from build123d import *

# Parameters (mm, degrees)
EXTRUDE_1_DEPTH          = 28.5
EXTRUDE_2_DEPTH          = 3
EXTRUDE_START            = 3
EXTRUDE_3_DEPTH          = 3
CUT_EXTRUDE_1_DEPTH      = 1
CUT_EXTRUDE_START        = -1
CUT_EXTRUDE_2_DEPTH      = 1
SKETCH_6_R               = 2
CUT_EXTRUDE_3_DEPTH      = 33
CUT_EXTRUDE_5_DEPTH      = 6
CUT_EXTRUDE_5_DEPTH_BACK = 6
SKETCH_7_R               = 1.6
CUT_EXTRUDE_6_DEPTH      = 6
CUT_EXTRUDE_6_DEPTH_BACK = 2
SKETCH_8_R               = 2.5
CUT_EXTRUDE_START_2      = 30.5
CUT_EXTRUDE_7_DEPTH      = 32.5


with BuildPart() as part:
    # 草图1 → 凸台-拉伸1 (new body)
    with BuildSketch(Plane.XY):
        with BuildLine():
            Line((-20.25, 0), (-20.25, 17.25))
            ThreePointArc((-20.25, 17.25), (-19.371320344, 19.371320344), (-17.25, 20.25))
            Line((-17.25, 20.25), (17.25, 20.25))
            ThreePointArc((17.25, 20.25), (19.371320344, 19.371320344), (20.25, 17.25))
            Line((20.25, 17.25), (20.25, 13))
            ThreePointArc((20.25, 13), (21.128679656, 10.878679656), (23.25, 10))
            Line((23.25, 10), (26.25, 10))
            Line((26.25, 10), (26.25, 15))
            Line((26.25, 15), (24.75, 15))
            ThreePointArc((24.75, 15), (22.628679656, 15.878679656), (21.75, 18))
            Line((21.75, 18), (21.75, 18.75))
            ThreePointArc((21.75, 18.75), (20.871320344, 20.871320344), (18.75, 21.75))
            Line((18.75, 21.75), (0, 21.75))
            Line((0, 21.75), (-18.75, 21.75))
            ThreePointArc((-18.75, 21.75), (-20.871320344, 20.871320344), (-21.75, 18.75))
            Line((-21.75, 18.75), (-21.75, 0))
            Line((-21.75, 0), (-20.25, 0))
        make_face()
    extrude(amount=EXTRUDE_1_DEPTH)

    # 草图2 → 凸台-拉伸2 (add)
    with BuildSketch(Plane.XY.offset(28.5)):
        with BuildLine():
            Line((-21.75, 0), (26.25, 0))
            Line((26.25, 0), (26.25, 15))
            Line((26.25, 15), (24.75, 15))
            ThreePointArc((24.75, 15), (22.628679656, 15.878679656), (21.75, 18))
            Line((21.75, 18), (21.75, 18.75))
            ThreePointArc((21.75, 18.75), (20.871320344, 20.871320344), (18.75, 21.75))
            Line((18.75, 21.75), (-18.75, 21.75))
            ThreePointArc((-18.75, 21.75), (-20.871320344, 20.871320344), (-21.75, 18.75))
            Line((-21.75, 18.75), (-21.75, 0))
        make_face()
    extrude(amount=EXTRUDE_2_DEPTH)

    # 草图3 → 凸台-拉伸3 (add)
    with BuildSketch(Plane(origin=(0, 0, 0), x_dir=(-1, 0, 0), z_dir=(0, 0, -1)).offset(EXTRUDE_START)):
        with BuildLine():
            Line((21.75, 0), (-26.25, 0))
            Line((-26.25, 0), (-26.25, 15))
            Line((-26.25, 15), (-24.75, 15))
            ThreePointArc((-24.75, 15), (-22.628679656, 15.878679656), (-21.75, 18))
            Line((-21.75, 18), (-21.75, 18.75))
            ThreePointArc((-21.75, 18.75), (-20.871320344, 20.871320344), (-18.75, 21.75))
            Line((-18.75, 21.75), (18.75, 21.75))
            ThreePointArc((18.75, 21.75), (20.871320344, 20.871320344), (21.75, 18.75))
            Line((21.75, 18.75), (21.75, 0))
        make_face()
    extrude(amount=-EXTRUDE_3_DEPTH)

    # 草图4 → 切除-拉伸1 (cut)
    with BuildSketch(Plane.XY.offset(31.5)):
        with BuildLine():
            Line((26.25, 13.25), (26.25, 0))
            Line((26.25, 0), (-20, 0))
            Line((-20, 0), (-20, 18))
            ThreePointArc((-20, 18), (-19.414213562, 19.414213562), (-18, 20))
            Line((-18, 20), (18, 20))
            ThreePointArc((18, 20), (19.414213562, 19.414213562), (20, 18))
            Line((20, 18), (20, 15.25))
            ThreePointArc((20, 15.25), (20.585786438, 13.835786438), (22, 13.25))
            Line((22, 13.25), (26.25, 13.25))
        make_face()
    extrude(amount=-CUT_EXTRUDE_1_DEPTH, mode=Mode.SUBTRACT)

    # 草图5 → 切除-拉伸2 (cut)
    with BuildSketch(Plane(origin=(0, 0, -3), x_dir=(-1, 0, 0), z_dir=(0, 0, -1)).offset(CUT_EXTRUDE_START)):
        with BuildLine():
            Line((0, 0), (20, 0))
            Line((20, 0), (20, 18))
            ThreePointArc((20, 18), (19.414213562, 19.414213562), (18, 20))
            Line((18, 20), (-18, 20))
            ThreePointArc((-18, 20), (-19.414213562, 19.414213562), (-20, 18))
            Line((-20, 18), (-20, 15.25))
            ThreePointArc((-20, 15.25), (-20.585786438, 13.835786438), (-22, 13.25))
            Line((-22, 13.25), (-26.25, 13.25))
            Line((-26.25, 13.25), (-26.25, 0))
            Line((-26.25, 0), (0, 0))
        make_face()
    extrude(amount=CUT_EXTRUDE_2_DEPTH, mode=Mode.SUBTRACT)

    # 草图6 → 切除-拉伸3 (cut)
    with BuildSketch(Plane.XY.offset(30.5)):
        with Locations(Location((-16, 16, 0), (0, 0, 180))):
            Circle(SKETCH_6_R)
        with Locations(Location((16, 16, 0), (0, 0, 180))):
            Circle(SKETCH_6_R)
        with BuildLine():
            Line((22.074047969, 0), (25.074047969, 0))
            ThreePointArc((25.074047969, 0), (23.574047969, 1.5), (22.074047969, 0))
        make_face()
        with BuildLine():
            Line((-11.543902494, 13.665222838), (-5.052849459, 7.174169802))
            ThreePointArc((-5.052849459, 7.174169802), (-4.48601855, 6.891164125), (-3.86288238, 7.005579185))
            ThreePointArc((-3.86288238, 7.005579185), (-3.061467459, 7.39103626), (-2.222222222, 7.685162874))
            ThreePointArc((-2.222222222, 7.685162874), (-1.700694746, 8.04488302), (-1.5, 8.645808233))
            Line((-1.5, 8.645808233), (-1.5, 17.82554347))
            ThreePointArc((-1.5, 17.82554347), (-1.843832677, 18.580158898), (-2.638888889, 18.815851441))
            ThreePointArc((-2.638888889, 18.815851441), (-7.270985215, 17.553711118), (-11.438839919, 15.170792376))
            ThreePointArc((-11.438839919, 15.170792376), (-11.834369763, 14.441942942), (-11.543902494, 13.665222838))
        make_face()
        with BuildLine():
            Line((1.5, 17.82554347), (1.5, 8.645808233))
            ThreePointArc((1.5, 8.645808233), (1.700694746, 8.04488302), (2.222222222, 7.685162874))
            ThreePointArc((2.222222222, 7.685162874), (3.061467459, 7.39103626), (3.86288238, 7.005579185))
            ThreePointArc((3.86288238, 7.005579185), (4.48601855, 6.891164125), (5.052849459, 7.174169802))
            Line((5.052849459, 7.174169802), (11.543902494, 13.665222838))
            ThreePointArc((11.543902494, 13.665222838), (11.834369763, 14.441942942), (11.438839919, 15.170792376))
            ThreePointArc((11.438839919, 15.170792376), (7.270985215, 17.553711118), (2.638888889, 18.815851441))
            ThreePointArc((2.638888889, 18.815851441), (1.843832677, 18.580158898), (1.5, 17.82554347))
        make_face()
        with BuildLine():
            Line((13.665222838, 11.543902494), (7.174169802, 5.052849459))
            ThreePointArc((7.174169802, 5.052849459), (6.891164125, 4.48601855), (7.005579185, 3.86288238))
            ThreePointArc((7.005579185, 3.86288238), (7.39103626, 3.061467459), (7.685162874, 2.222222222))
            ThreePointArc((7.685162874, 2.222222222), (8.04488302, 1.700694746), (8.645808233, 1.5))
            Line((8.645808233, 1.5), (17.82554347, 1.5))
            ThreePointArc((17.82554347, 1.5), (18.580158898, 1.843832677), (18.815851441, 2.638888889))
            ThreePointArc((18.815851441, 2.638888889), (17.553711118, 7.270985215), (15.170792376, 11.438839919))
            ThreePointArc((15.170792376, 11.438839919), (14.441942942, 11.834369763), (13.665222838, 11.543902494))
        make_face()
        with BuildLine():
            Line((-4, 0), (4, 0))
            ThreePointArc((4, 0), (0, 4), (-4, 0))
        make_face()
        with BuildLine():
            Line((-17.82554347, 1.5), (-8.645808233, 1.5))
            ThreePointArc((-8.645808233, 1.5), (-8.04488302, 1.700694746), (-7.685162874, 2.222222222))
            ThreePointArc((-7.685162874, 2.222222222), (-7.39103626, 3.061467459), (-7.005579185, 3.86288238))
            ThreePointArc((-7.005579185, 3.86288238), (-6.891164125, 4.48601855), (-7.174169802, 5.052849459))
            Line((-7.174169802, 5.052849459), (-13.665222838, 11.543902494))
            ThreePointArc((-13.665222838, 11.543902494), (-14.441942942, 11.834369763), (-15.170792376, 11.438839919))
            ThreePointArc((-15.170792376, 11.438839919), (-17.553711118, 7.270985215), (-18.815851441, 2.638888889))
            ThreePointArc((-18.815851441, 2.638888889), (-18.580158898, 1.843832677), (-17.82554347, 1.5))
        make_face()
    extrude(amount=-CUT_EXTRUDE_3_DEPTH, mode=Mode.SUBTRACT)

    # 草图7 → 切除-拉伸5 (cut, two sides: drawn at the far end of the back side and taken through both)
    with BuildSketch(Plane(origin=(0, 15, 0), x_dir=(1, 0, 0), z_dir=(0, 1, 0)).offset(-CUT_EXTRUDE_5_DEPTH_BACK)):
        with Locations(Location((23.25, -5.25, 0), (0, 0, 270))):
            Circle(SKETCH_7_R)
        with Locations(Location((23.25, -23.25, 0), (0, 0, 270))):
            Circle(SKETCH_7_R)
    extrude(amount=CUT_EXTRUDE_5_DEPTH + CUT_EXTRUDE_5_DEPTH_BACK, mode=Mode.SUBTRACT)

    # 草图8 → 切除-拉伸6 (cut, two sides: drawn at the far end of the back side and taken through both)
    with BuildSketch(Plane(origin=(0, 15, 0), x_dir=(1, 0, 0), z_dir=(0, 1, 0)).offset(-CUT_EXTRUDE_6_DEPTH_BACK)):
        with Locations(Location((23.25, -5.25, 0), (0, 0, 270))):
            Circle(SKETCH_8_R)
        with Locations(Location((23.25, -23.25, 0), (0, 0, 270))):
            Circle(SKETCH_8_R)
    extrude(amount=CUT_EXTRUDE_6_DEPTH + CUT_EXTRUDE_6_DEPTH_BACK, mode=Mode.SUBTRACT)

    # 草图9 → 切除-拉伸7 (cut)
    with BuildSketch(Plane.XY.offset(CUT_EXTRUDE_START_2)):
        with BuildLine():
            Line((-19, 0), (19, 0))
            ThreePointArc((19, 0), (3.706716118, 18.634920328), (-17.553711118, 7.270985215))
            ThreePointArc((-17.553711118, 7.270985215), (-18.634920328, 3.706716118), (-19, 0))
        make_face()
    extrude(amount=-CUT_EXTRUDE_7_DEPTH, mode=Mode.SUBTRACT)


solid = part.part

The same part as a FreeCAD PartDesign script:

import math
import FreeCAD as App
import Part
import Sketcher
from FreeCAD import Vector

doc = App.newDocument("Part")
params = doc.addObject("Spreadsheet::Sheet", "Params")
for row, (alias, value) in enumerate([
    ("sketch1_radius", "3 mm"),
    ("sketch1_width", "3 mm"),
    ("sketch1_height", "5 mm"),
    ("sketch1_width2", "34.5 mm"),
    ("sketch1_width3", "1.5 mm"),
    ("pad1_length", "28.5 mm"),
    ("sketch2_radius", "3 mm"),
    ("sketch2_width", "48 mm"),
    ("sketch2_height", "15 mm"),
    ("sketch2_width2", "1.5 mm"),
    ("sketch2_height2", "0.75 mm"),
    ("pad2_length", "3 mm"),
    ("sketch3_radius", "3 mm"),
    ("sketch3_width", "48 mm"),
    ("sketch3_height", "15 mm"),
    ("sketch3_width2", "37.5 mm"),
    ("sketch3_height2", "18.75 mm"),
    ("pad3_length", "3 mm"),
    ("sketch4_radius", "2 mm"),
    ("sketch4_width", "36 mm"),
    ("sketch4_height", "18 mm"),
    ("sketch4_width2", "4.25 mm"),
    ("sketch4_height2", "13.25 mm"),
    ("pocket1_length", "1 mm"),
    ("sketch5_radius", "2 mm"),
    ("sketch5_width", "36 mm"),
    ("sketch5_height", "18 mm"),
    ("sketch5_width2", "4.25 mm"),
    ("sketch5_height2", "2.75 mm"),
    ("pocket2_length", "1 mm"),
    ("sketch6_diameter", "4 mm"),
    ("sketch6_radius", "1 mm"),
    ("sketch6_radius2", "8 mm"),
    ("sketch6_radius3", "19 mm"),
    ("sketch6_radius4", "4 mm"),
    ("pocket3_length", "33 mm"),
    ("sketch7_diameter", "3.2 mm"),
    ("sketch8_diameter", "5 mm"),
    ("pocket5_length", "6 mm"),
    ("pocket5_length2", "2 mm"),
    ("sketch9_radius", "19 mm"),
    ("pocket6_length", "32.5 mm"),
], start=1):
    params.set(f"A{row}", alias)
    params.set(f"B{row}", "=" + value)
    params.setAlias(f"B{row}", alias)

body = doc.addObject("PartDesign::Body", "Body")

# Sketch on XY plane
sketch1 = body.newObject("Sketcher::SketchObject", "Sketch")
sketch1.AttachmentSupport = (doc.getObject("XY_Plane"), [""])
sketch1.MapMode = "FlatFace"
sketch1.addGeometry(Part.LineSegment(Vector(-20.2, 0, 0), Vector(-20.2, 17.2, 0)), False)
sketch1.addGeometry(Part.ArcOfCircle(Part.Circle(Vector(-17.3, 17.3, 0), Vector(0, 0, 1), 3), math.radians(90), math.radians(180)), False)
sketch1.addGeometry(Part.LineSegment(Vector(-17.2, 20.2, 0), Vector(17.2, 20.2, 0)), False)
sketch1.addGeometry(Part.ArcOfCircle(Part.Circle(Vector(17.3, 17.3, 0), Vector(0, 0, 1), 3), math.radians(0), math.radians(90)), False)
sketch1.addGeometry(Part.LineSegment(Vector(20.2, 17.2, 0), Vector(20.2, 13, 0)), False)
sketch1.addGeometry(Part.ArcOfCircle(Part.Circle(Vector(23.2, 13, 0), Vector(0, 0, 1), 3), math.radians(180), math.radians(270)), False)
sketch1.addGeometry(Part.LineSegment(Vector(23.2, 10, 0), Vector(26.2, 10, 0)), False)
sketch1.addGeometry(Part.LineSegment(Vector(26.2, 10, 0), Vector(26.2, 15, 0)), False)
sketch1.addGeometry(Part.LineSegment(Vector(26.2, 15, 0), Vector(24.8, 15, 0)), False)
sketch1.addGeometry(Part.ArcOfCircle(Part.Circle(Vector(24.7, 18, 0), Vector(0, 0, 1), 3), math.radians(180), math.radians(270)), False)
sketch1.addGeometry(Part.LineSegment(Vector(21.8, 18, 0), Vector(21.8, 18.8, 0)), False)
sketch1.addGeometry(Part.ArcOfCircle(Part.Circle(Vector(18.8, 18.8, 0), Vector(0, 0, 1), 3), math.radians(0), math.radians(90)), False)
sketch1.addGeometry(Part.LineSegment(Vector(18.8, 21.8, 0), Vector(-18.8, 21.8, 0)), False)
sketch1.addGeometry(Part.ArcOfCircle(Part.Circle(Vector(-18.8, 18.8, 0), Vector(0, 0, 1), 3), math.radians(90), math.radians(180)), False)
sketch1.addGeometry(Part.LineSegment(Vector(-21.8, 18.8, 0), Vector(-21.8, 0, 0)), False)
sketch1.addGeometry(Part.LineSegment(Vector(-21.8, 0, 0), Vector(-20.2, 0, 0)), False)
sketch1.addConstraint(Sketcher.Constraint("Tangent", 0, 2, 1, 2))
sketch1.addConstraint(Sketcher.Constraint("Tangent", 1, 1, 2, 1))
sketch1.addConstraint(Sketcher.Constraint("Tangent", 2, 2, 3, 2))
sketch1.addConstraint(Sketcher.Constraint("Tangent", 3, 1, 4, 1))
sketch1.addConstraint(Sketcher.Constraint("Tangent", 4, 2, 5, 1))
sketch1.addConstraint(Sketcher.Constraint("Tangent", 5, 2, 6, 1))
sketch1.addConstraint(Sketcher.Constraint("Coincident", 6, 2, 7, 1))
sketch1.addConstraint(Sketcher.Constraint("Coincident", 7, 2, 8, 1))
sketch1.addConstraint(Sketcher.Constraint("Tangent", 8, 2, 9, 2))
sketch1.addConstraint(Sketcher.Constraint("Tangent", 9, 1, 10, 1))
sketch1.addConstraint(Sketcher.Constraint("Tangent", 10, 2, 11, 1))
sketch1.addConstraint(Sketcher.Constraint("Tangent", 11, 2, 12, 1))
sketch1.addConstraint(Sketcher.Constraint("Tangent", 12, 2, 13, 1))
sketch1.addConstraint(Sketcher.Constraint("Tangent", 13, 2, 14, 1))
sketch1.addConstraint(Sketcher.Constraint("Coincident", 14, 2, 15, 1))
sketch1.addConstraint(Sketcher.Constraint("Coincident", 15, 2, 0, 1))
sketch1.addConstraint(Sketcher.Constraint("Vertical", 0))
sketch1.addConstraint(Sketcher.Constraint("Horizontal", 2))
sketch1.addConstraint(Sketcher.Constraint("Vertical", 4))
sketch1.addConstraint(Sketcher.Constraint("Horizontal", 6))
sketch1.addConstraint(Sketcher.Constraint("Vertical", 7))
sketch1.addConstraint(Sketcher.Constraint("Horizontal", 8))
sketch1.addConstraint(Sketcher.Constraint("Vertical", 10))
sketch1.addConstraint(Sketcher.Constraint("Horizontal", 12))
sketch1.addConstraint(Sketcher.Constraint("Vertical", 14))
sketch1.addConstraint(Sketcher.Constraint("Horizontal", 15))
sketch1.addConstraint(Sketcher.Constraint("Equal", 1, 3))
sketch1.addConstraint(Sketcher.Constraint("Equal", 3, 5))
sketch1.addConstraint(Sketcher.Constraint("Equal", 5, 9))
sketch1.addConstraint(Sketcher.Constraint("Equal", 9, 11))
sketch1.addConstraint(Sketcher.Constraint("Equal", 11, 13))
sketch1.addConstraint(Sketcher.Constraint("PointOnObject", 14, 2, -1))
sketch1.addConstraint(Sketcher.Constraint("Equal", 8, 15))
sketch1.addConstraint(Sketcher.Constraint("Radius", 1, 3.0))
sketch1.addConstraint(Sketcher.Constraint("DistanceX", 6, 1, 6, 2, 3.0))
sketch1.addConstraint(Sketcher.Constraint("DistanceY", 7, 1, 7, 2, 5.0))
sketch1.addConstraint(Sketcher.Constraint("DistanceX", 2, 1, 2, 2, 34.5))
sketch1.addConstraint(Sketcher.Constraint("DistanceX", 8, 2, 8, 1, 1.5))
sketch1.addConstraint(Sketcher.Constraint("DistanceY", -1, 1, 5, 3, 13.0))
sketch1.addConstraint(Sketcher.Constraint("DistanceY", 0, 1, 0, 2, 17.25))
sketch1.addConstraint(Sketcher.Constraint("DistanceY", 10, 1, 10, 2, 0.75))
sketch1.addConstraint(Sketcher.Constraint("DistanceX", 1, 3, -1, 1, 17.25))
sketch1.setExpression("Constraints[33]", "Params.sketch1_radius")
sketch1.setExpression("Constraints[34]", "Params.sketch1_width")
sketch1.setExpression("Constraints[35]", "Params.sketch1_height")
sketch1.setExpression("Constraints[36]", "Params.sketch1_width2")
sketch1.setExpression("Constraints[37]", "Params.sketch1_width3")
pad1 = body.newObject("PartDesign::Pad", "Pad")
pad1.Profile = sketch1
pad1.setExpression("Length", "Params.pad1_length")

# Sketch on XY plane
sketch2 = body.newObject("Sketcher::SketchObject", "Sketch001")
sketch2.AttachmentSupport = (doc.getObject("XY_Plane"), [""])
sketch2.MapMode = "FlatFace"
sketch2.AttachmentOffset = App.Placement(Vector(0, 0, 28.5), App.Rotation())
sketch2.addGeometry(Part.LineSegment(Vector(-21.8, 0, 0), Vector(26.2, 0, 0)), False)
sketch2.addGeometry(Part.LineSegment(Vector(26.2, 0, 0), Vector(26.2, 15, 0)), False)
sketch2.addGeometry(Part.LineSegment(Vector(26.2, 15, 0), Vector(24.8, 15, 0)), False)
sketch2.addGeometry(Part.ArcOfCircle(Part.Circle(Vector(24.7, 18, 0), Vector(0, 0, 1), 3), math.radians(180), math.radians(270)), False)
sketch2.addGeometry(Part.LineSegment(Vector(21.8, 18, 0), Vector(21.8, 18.8, 0)), False)
sketch2.addGeometry(Part.ArcOfCircle(Part.Circle(Vector(18.8, 18.8, 0), Vector(0, 0, 1), 3), math.radians(0), math.radians(90)), False)
sketch2.addGeometry(Part.LineSegment(Vector(18.8, 21.8, 0), Vector(-18.8, 21.8, 0)), False)
sketch2.addGeometry(Part.ArcOfCircle(Part.Circle(Vector(-18.8, 18.8, 0), Vector(0, 0, 1), 3), math.radians(90), math.radians(180)), False)
sketch2.addGeometry(Part.LineSegment(Vector(-21.8, 18.8, 0), Vector(-21.8, 0, 0)), False)
sketch2.addConstraint(Sketcher.Constraint("Coincident", 0, 2, 1, 1))
sketch2.addConstraint(Sketcher.Constraint("Coincident", 1, 2, 2, 1))
sketch2.addConstraint(Sketcher.Constraint("Tangent", 2, 2, 3, 2))
sketch2.addConstraint(Sketcher.Constraint("Tangent", 3, 1, 4, 1))
sketch2.addConstraint(Sketcher.Constraint("Tangent", 4, 2, 5, 1))
sketch2.addConstraint(Sketcher.Constraint("Tangent", 5, 2, 6, 1))
sketch2.addConstraint(Sketcher.Constraint("Tangent", 6, 2, 7, 1))
sketch2.addConstraint(Sketcher.Constraint("Tangent", 7, 2, 8, 1))
sketch2.addConstraint(Sketcher.Constraint("Coincident", 8, 2, 0, 1))
sketch2.addConstraint(Sketcher.Constraint("Horizontal", 0))
sketch2.addConstraint(Sketcher.Constraint("Vertical", 1))
sketch2.addConstraint(Sketcher.Constraint("Horizontal", 2))
sketch2.addConstraint(Sketcher.Constraint("Vertical", 4))
sketch2.addConstraint(Sketcher.Constraint("Horizontal", 6))
sketch2.addConstraint(Sketcher.Constraint("Vertical", 8))
sketch2.addConstraint(Sketcher.Constraint("Equal", 3, 5))
sketch2.addConstraint(Sketcher.Constraint("Equal", 5, 7))
sketch2.addConstraint(Sketcher.Constraint("PointOnObject", 0, 2, -1))
sketch2.addConstraint(Sketcher.Constraint("Radius", 3, 3.0))
sketch2.addConstraint(Sketcher.Constraint("DistanceX", 0, 1, 0, 2, 48.0))
sketch2.addConstraint(Sketcher.Constraint("DistanceY", 1, 1, 1, 2, 15.0))
sketch2.addConstraint(Sketcher.Constraint("DistanceX", 2, 2, 2, 1, 1.5))
sketch2.addConstraint(Sketcher.Constraint("DistanceY", 4, 1, 4, 2, 0.75))
sketch2.addConstraint(Sketcher.Constraint("DistanceX", -1, 1, 3, 3, 24.75))
sketch2.setExpression("Constraints[18]", "Params.sketch2_radius")
sketch2.setExpression("Constraints[19]", "Params.sketch2_width")
sketch2.setExpression("Constraints[20]", "Params.sketch2_height")
sketch2.setExpression("Constraints[21]", "Params.sketch2_width2")
sketch2.setExpression("Constraints[22]", "Params.sketch2_height2")
pad2 = body.newObject("PartDesign::Pad", "Pad001")
pad2.Profile = sketch2
pad2.setExpression("Length", "Params.pad2_length")

# Sketch on XY plane
sketch3 = body.newObject("Sketcher::SketchObject", "Sketch002")
sketch3.AttachmentSupport = (doc.getObject("XY_Plane"), [""])
sketch3.MapMode = "FlatFace"
sketch3.AttachmentOffset = App.Placement(Vector(0, 0, -3), App.Rotation())
sketch3.addGeometry(Part.LineSegment(Vector(26.2, 0, 0), Vector(-21.8, 0, 0)), False)
sketch3.addGeometry(Part.LineSegment(Vector(-21.8, 0, 0), Vector(-21.8, 18.8, 0)), False)
sketch3.addGeometry(Part.ArcOfCircle(Part.Circle(Vector(-18.8, 18.8, 0), Vector(0, 0, 1), 3), math.radians(90), math.radians(180)), False)
sketch3.addGeometry(Part.LineSegment(Vector(-18.8, 21.8, 0), Vector(18.8, 21.8, 0)), False)
sketch3.addGeometry(Part.ArcOfCircle(Part.Circle(Vector(18.8, 18.8, 0), Vector(0, 0, 1), 3), math.radians(0), math.radians(90)), False)
sketch3.addGeometry(Part.LineSegment(Vector(21.8, 18.8, 0), Vector(21.8, 18, 0)), False)
sketch3.addGeometry(Part.ArcOfCircle(Part.Circle(Vector(24.7, 18, 0), Vector(0, 0, 1), 3), math.radians(180), math.radians(270)), False)
sketch3.addGeometry(Part.LineSegment(Vector(24.8, 15, 0), Vector(26.2, 15, 0)), False)
sketch3.addGeometry(Part.LineSegment(Vector(26.2, 15, 0), Vector(26.2, 0, 0)), False)
sketch3.addConstraint(Sketcher.Constraint("Coincident", 0, 2, 1, 1))
sketch3.addConstraint(Sketcher.Constraint("Tangent", 1, 2, 2, 2))
sketch3.addConstraint(Sketcher.Constraint("Tangent", 2, 1, 3, 1))
sketch3.addConstraint(Sketcher.Constraint("Tangent", 3, 2, 4, 2))
sketch3.addConstraint(Sketcher.Constraint("Tangent", 4, 1, 5, 1))
sketch3.addConstraint(Sketcher.Constraint("Tangent", 5, 2, 6, 1))
sketch3.addConstraint(Sketcher.Constraint("Tangent", 6, 2, 7, 1))
sketch3.addConstraint(Sketcher.Constraint("Coincident", 7, 2, 8, 1))
sketch3.addConstraint(Sketcher.Constraint("Coincident", 8, 2, 0, 1))
sketch3.addConstraint(Sketcher.Constraint("Horizontal", 0))
sketch3.addConstraint(Sketcher.Constraint("Vertical", 1))
sketch3.addConstraint(Sketcher.Constraint("Horizontal", 3))
sketch3.addConstraint(Sketcher.Constraint("Vertical", 5))
sketch3.addConstraint(Sketcher.Constraint("Horizontal", 7))
sketch3.addConstraint(Sketcher.Constraint("Vertical", 8))
sketch3.addConstraint(Sketcher.Constraint("Equal", 2, 4))
sketch3.addConstraint(Sketcher.Constraint("Equal", 4, 6))
sketch3.addConstraint(Sketcher.Constraint("PointOnObject", 0, 2, -1))
sketch3.addConstraint(Sketcher.Constraint("Radius", 2, 3.0))
sketch3.addConstraint(Sketcher.Constraint("DistanceX", 0, 2, 0, 1, 48.0))
sketch3.addConstraint(Sketcher.Constraint("DistanceY", 8, 2, 8, 1, 15.0))
sketch3.addConstraint(Sketcher.Constraint("DistanceX", 3, 1, 3, 2, 37.5))
sketch3.addConstraint(Sketcher.Constraint("DistanceY", 1, 1, 1, 2, 18.75))
sketch3.addConstraint(Sketcher.Constraint("DistanceX", 2, 3, -1, 1, 18.75))
sketch3.setExpression("Constraints[18]", "Params.sketch3_radius")
sketch3.setExpression("Constraints[19]", "Params.sketch3_width")
sketch3.setExpression("Constraints[20]", "Params.sketch3_height")
sketch3.setExpression("Constraints[21]", "Params.sketch3_width2")
sketch3.setExpression("Constraints[22]", "Params.sketch3_height2")
pad3 = body.newObject("PartDesign::Pad", "Pad002")
pad3.Profile = sketch3
pad3.setExpression("Length", "Params.pad3_length")

# Sketch on XY plane
sketch4 = body.newObject("Sketcher::SketchObject", "Sketch003")
sketch4.AttachmentSupport = (doc.getObject("XY_Plane"), [""])
sketch4.MapMode = "FlatFace"
sketch4.AttachmentOffset = App.Placement(Vector(0, 0, 31.5), App.Rotation())
sketch4.addGeometry(Part.LineSegment(Vector(26.2, 0, 0), Vector(26.2, 13.2, 0)), False)
sketch4.addGeometry(Part.LineSegment(Vector(26.2, 13.2, 0), Vector(22, 13.2, 0)), False)
sketch4.addGeometry(Part.ArcOfCircle(Part.Circle(Vector(22, 15.3, 0), Vector(0, 0, 1), 2), math.radians(-180), math.radians(-90)), False)
sketch4.addGeometry(Part.LineSegment(Vector(20, 15.2, 0), Vector(20, 18, 0)), False)
sketch4.addGeometry(Part.ArcOfCircle(Part.Circle(Vector(18, 18, 0), Vector(0, 0, 1), 2), math.radians(0), math.radians(90)), False)
sketch4.addGeometry(Part.LineSegment(Vector(18, 20, 0), Vector(-18, 20, 0)), False)
sketch4.addGeometry(Part.ArcOfCircle(Part.Circle(Vector(-18, 18, 0), Vector(0, 0, 1), 2), math.radians(90), math.radians(180)), False)
sketch4.addGeometry(Part.LineSegment(Vector(-20, 18, 0), Vector(-20, 0, 0)), False)
sketch4.addGeometry(Part.LineSegment(Vector(-20, 0, 0), Vector(26.2, 0, 0)), False)
sketch4.addConstraint(Sketcher.Constraint("Coincident", 0, 2, 1, 1))
sketch4.addConstraint(Sketcher.Constraint("Tangent", 1, 2, 2, 2))
sketch4.addConstraint(Sketcher.Constraint("Tangent", 2, 1, 3, 1))
sketch4.addConstraint(Sketcher.Constraint("Tangent", 3, 2, 4, 1))
sketch4.addConstraint(Sketcher.Constraint("Tangent", 4, 2, 5, 1))
sketch4.addConstraint(Sketcher.Constraint("Tangent", 5, 2, 6, 1))
sketch4.addConstraint(Sketcher.Constraint("Tangent", 6, 2, 7, 1))
sketch4.addConstraint(Sketcher.Constraint("Coincident", 7, 2, 8, 1))
sketch4.addConstraint(Sketcher.Constraint("Coincident", 8, 2, 0, 1))
sketch4.addConstraint(Sketcher.Constraint("Vertical", 0))
sketch4.addConstraint(Sketcher.Constraint("Horizontal", 1))
sketch4.addConstraint(Sketcher.Constraint("Vertical", 3))
sketch4.addConstraint(Sketcher.Constraint("Horizontal", 5))
sketch4.addConstraint(Sketcher.Constraint("Vertical", 7))
sketch4.addConstraint(Sketcher.Constraint("Horizontal", 8))
sketch4.addConstraint(Sketcher.Constraint("Equal", 2, 4))
sketch4.addConstraint(Sketcher.Constraint("Equal", 4, 6))
sketch4.addConstraint(Sketcher.Constraint("PointOnObject", 7, 2, -1))
sketch4.addConstraint(Sketcher.Constraint("Radius", 2, 2.0))
sketch4.addConstraint(Sketcher.Constraint("DistanceX", 5, 2, 5, 1, 36.0))
sketch4.addConstraint(Sketcher.Constraint("DistanceY", 7, 2, 7, 1, 18.0))
sketch4.addConstraint(Sketcher.Constraint("DistanceX", -1, 1, 2, 3, 22.0))
sketch4.addConstraint(Sketcher.Constraint("DistanceX", 1, 2, 1, 1, 4.25))
sketch4.addConstraint(Sketcher.Constraint("DistanceY", 0, 1, 0, 2, 13.25))
sketch4.setExpression("Constraints[18]", "Params.sketch4_radius")
sketch4.setExpression("Constraints[19]", "Params.sketch4_width")
sketch4.setExpression("Constraints[20]", "Params.sketch4_height")
sketch4.setExpression("Constraints[22]", "Params.sketch4_width2")
sketch4.setExpression("Constraints[23]", "Params.sketch4_height2")
pocket1 = body.newObject("PartDesign::Pocket", "Pocket")
pocket1.Profile = sketch4
pocket1.setExpression("Length", "Params.pocket1_length")

# Sketch on XY plane
sketch5 = body.newObject("Sketcher::SketchObject", "Sketch004")
sketch5.AttachmentSupport = (doc.getObject("XY_Plane"), [""])
sketch5.MapMode = "FlatFace"
sketch5.AttachmentOffset = App.Placement(Vector(0, 0, -2), App.Rotation())
sketch5.addGeometry(Part.LineSegment(Vector(-20, 0, 0), Vector(-20, 18, 0)), False)
sketch5.addGeometry(Part.ArcOfCircle(Part.Circle(Vector(-18, 18, 0), Vector(0, 0, 1), 2), math.radians(90), math.radians(180)), False)
sketch5.addGeometry(Part.LineSegment(Vector(-18, 20, 0), Vector(18, 20, 0)), False)
sketch5.addGeometry(Part.ArcOfCircle(Part.Circle(Vector(18, 18, 0), Vector(0, 0, 1), 2), math.radians(0), math.radians(90)), False)
sketch5.addGeometry(Part.LineSegment(Vector(20, 18, 0), Vector(20, 15.2, 0)), False)
sketch5.addGeometry(Part.ArcOfCircle(Part.Circle(Vector(22, 15.3, 0), Vector(0, 0, 1), 2), math.radians(-180), math.radians(-90)), False)
sketch5.addGeometry(Part.LineSegment(Vector(22, 13.2, 0), Vector(26.2, 13.2, 0)), False)
sketch5.addGeometry(Part.LineSegment(Vector(26.2, 13.2, 0), Vector(26.2, 0, 0)), False)
sketch5.addGeometry(Part.LineSegment(Vector(26.2, 0, 0), Vector(-20, 0, 0)), False)
sketch5.addConstraint(Sketcher.Constraint("Tangent", 0, 2, 1, 2))
sketch5.addConstraint(Sketcher.Constraint("Tangent", 1, 1, 2, 1))
sketch5.addConstraint(Sketcher.Constraint("Tangent", 2, 2, 3, 2))
sketch5.addConstraint(Sketcher.Constraint("Tangent", 3, 1, 4, 1))
sketch5.addConstraint(Sketcher.Constraint("Tangent", 4, 2, 5, 1))
sketch5.addConstraint(Sketcher.Constraint("Tangent", 5, 2, 6, 1))
sketch5.addConstraint(Sketcher.Constraint("Coincident", 6, 2, 7, 1))
sketch5.addConstraint(Sketcher.Constraint("Coincident", 7, 2, 8, 1))
sketch5.addConstraint(Sketcher.Constraint("Coincident", 8, 2, 0, 1))
sketch5.addConstraint(Sketcher.Constraint("Vertical", 0))
sketch5.addConstraint(Sketcher.Constraint("Horizontal", 2))
sketch5.addConstraint(Sketcher.Constraint("Vertical", 4))
sketch5.addConstraint(Sketcher.Constraint("Horizontal", 6))
sketch5.addConstraint(Sketcher.Constraint("Vertical", 7))
sketch5.addConstraint(Sketcher.Constraint("Horizontal", 8))
sketch5.addConstraint(Sketcher.Constraint("Equal", 1, 3))
sketch5.addConstraint(Sketcher.Constraint("Equal", 3, 5))
sketch5.addConstraint(Sketcher.Constraint("PointOnObject", 7, 2, -1))
sketch5.addConstraint(Sketcher.Constraint("Radius", 1, 2.0))
sketch5.addConstraint(Sketcher.Constraint("DistanceX", 2, 1, 2, 2, 36.0))
sketch5.addConstraint(Sketcher.Constraint("DistanceY", 0, 1, 0, 2, 18.0))
sketch5.addConstraint(Sketcher.Constraint("DistanceX", 1, 3, -1, 1, 18.0))
sketch5.addConstraint(Sketcher.Constraint("DistanceX", 6, 1, 6, 2, 4.25))
sketch5.addConstraint(Sketcher.Constraint("DistanceY", 4, 2, 4, 1, 2.75))
sketch5.setExpression("Constraints[18]", "Params.sketch5_radius")
sketch5.setExpression("Constraints[19]", "Params.sketch5_width")
sketch5.setExpression("Constraints[20]", "Params.sketch5_height")
sketch5.setExpression("Constraints[22]", "Params.sketch5_width2")
sketch5.setExpression("Constraints[23]", "Params.sketch5_height2")
pocket2 = body.newObject("PartDesign::Pocket", "Pocket001")
pocket2.Profile = sketch5
pocket2.setExpression("Length", "Params.pocket2_length")

# Sketch on XY plane
sketch6 = body.newObject("Sketcher::SketchObject", "Sketch005")
sketch6.AttachmentSupport = (doc.getObject("XY_Plane"), [""])
sketch6.MapMode = "FlatFace"
sketch6.AttachmentOffset = App.Placement(Vector(0, 0, 30.5), App.Rotation())
sketch6.addGeometry(Part.Circle(Vector(-16, 16, 0), Vector(0, 0, 1), 2), False)
sketch6.addGeometry(Part.Circle(Vector(16, 16, 0), Vector(0, 0, 1), 2), False)
sketch6.addGeometry(Part.LineSegment(Vector(22.1, 0, 0), Vector(25.1, 0, 0)), False)
sketch6.addGeometry(Part.ArcOfCircle(Part.Circle(Vector(23.6, 0, 0), Vector(0, 0, 1), 1.5), math.radians(0), math.radians(180)), False)
sketch6.addGeometry(Part.LineSegment(Vector(-11.5, 13.7, 0), Vector(-5.1, 7.2, 0)), False)
sketch6.addGeometry(Part.ArcOfCircle(Part.Circle(Vector(-4.3, 7.9, 0), Vector(0, 0, 1), 1), math.radians(-135), math.radians(-61)), False)
sketch6.addGeometry(Part.ArcOfCircle(Part.Circle(Vector(0, 0, 0), Vector(0, 0, 1), 8), math.radians(106.13), math.radians(118.87)), False)
sketch6.addGeometry(Part.ArcOfCircle(Part.Circle(Vector(-2.5, 8.6, 0), Vector(0, 0, 1), 1), math.radians(-74), math.radians(0)), False)
sketch6.addGeometry(Part.LineSegment(Vector(-1.5, 8.6, 0), Vector(-1.5, 17.8, 0)), False)
sketch6.addGeometry(Part.ArcOfCircle(Part.Circle(Vector(-2.5, 17.8, 0), Vector(0, 0, 1), 1), math.radians(0), math.radians(98)), False)
sketch6.addGeometry(Part.ArcOfCircle(Part.Circle(Vector(0, 0, 0), Vector(0, 0, 1), 19), math.radians(98), math.radians(127)), False)
sketch6.addGeometry(Part.ArcOfCircle(Part.Circle(Vector(-10.8, 14.4, 0), Vector(0, 0, 1), 1), math.radians(127), math.radians(225)), False)
sketch6.addGeometry(Part.LineSegment(Vector(1.5, 17.8, 0), Vector(1.5, 8.6, 0)), False)
sketch6.addGeometry(Part.ArcOfCircle(Part.Circle(Vector(2.5, 8.6, 0), Vector(0, 0, 1), 1), math.radians(180), math.radians(254)), False)
sketch6.addGeometry(Part.ArcOfCircle(Part.Circle(Vector(0, 0, 0), Vector(0, 0, 1), 8), math.radians(61.13), math.radians(73.87)), False)
sketch6.addGeometry(Part.ArcOfCircle(Part.Circle(Vector(4.3, 7.9, 0), Vector(0, 0, 1), 1), math.radians(-119), math.radians(-45)), False)
sketch6.addGeometry(Part.LineSegment(Vector(5.1, 7.2, 0), Vector(11.5, 13.7, 0)), False)
sketch6.addGeometry(Part.ArcOfCircle(Part.Circle(Vector(10.8, 14.4, 0), Vector(0, 0, 1), 1), math.radians(-45), math.radians(53)), False)
sketch6.addGeometry(Part.ArcOfCircle(Part.Circle(Vector(0, 0, 0), Vector(0, 0, 1), 19), math.radians(53), math.radians(82)), False)
sketch6.addGeometry(Part.ArcOfCircle(Part.Circle(Vector(2.5, 17.8, 0), Vector(0, 0, 1), 1), math.radians(82), math.radians(180)), False)
sketch6.addGeometry(Part.LineSegment(Vector(13.7, 11.5, 0), Vector(7.2, 5.1, 0)), False)
sketch6.addGeometry(Part.ArcOfCircle(Part.Circle(Vector(7.9, 4.3, 0), Vector(0, 0, 1), 1), math.radians(135), math.radians(209)), False)
sketch6.addGeometry(Part.ArcOfCircle(Part.Circle(Vector(0, 0, 0), Vector(0, 0, 1), 8), math.radians(16.13), math.radians(28.87)), False)
sketch6.addGeometry(Part.ArcOfCircle(Part.Circle(Vector(8.6, 2.5, 0), Vector(0, 0, 1), 1), math.radians(-164), math.radians(-90)), False)
sketch6.addGeometry(Part.LineSegment(Vector(8.6, 1.5, 0), Vector(17.8, 1.5, 0)), False)
sketch6.addGeometry(Part.ArcOfCircle(Part.Circle(Vector(17.8, 2.5, 0), Vector(0, 0, 1), 1), math.radians(-90), math.radians(8)), False)
sketch6.addGeometry(Part.ArcOfCircle(Part.Circle(Vector(0, 0, 0), Vector(0, 0, 1), 19), math.radians(8), math.radians(37)), False)
sketch6.addGeometry(Part.ArcOfCircle(Part.Circle(Vector(14.4, 10.8, 0), Vector(0, 0, 1), 1), math.radians(37), math.radians(135)), False)
sketch6.addGeometry(Part.LineSegment(Vector(-4, 0, 0), Vector(4, 0, 0)), False)
sketch6.addGeometry(Part.ArcOfCircle(Part.Circle(Vector(0, 0, 0), Vector(0, 0, 1), 4), math.radians(0), math.radians(180)), False)
sketch6.addGeometry(Part.LineSegment(Vector(-17.8, 1.5, 0), Vector(-8.6, 1.5, 0)), False)
sketch6.addGeometry(Part.ArcOfCircle(Part.Circle(Vector(-8.6, 2.5, 0), Vector(0, 0, 1), 1), math.radians(-90), math.radians(-16)), False)
sketch6.addGeometry(Part.ArcOfCircle(Part.Circle(Vector(0, 0, 0), Vector(0, 0, 1), 8), math.radians(151.13), math.radians(163.87)), False)
sketch6.addGeometry(Part.ArcOfCircle(Part.Circle(Vector(-7.9, 4.3, 0), Vector(0, 0, 1), 1), math.radians(-29), math.radians(45)), False)
sketch6.addGeometry(Part.LineSegment(Vector(-7.2, 5.1, 0), Vector(-13.7, 11.5, 0)), False)
sketch6.addGeometry(Part.ArcOfCircle(Part.Circle(Vector(-14.4, 10.8, 0), Vector(0, 0, 1), 1), math.radians(45), math.radians(143)), False)
sketch6.addGeometry(Part.ArcOfCircle(Part.Circle(Vector(0, 0, 0), Vector(0, 0, 1), 19), math.radians(143), math.radians(172)), False)
sketch6.addGeometry(Part.ArcOfCircle(Part.Circle(Vector(-17.8, 2.5, 0), Vector(0, 0, 1), 1), math.radians(172), math.radians(270)), False)
sketch6.addConstraint(Sketcher.Constraint("Coincident", 2, 1, 3, 2))
sketch6.addConstraint(Sketcher.Constraint("Coincident", 3, 1, 2, 2))
sketch6.addConstraint(Sketcher.Constraint("Tangent", 4, 2, 5, 1))
sketch6.addConstraint(Sketcher.Constraint("Tangent", 5, 2, 6, 2))
sketch6.addConstraint(Sketcher.Constraint("Tangent", 6, 1, 7, 1))
sketch6.addConstraint(Sketcher.Constraint("Tangent", 7, 2, 8, 1))
sketch6.addConstraint(Sketcher.Constraint("Tangent", 8, 2, 9, 1))
sketch6.addConstraint(Sketcher.Constraint("Tangent", 9, 2, 10, 1))
sketch6.addConstraint(Sketcher.Constraint("Tangent", 10, 2, 11, 1))
sketch6.addConstraint(Sketcher.Constraint("Tangent", 11, 2, 4, 1))
sketch6.addConstraint(Sketcher.Constraint("Tangent", 12, 2, 13, 1))
sketch6.addConstraint(Sketcher.Constraint("Tangent", 13, 2, 14, 2))
sketch6.addConstraint(Sketcher.Constraint("Tangent", 14, 1, 15, 1))
sketch6.addConstraint(Sketcher.Constraint("Tangent", 15, 2, 16, 1))
sketch6.addConstraint(Sketcher.Constraint("Tangent", 16, 2, 17, 1))
sketch6.addConstraint(Sketcher.Constraint("Tangent", 17, 2, 18, 1))
sketch6.addConstraint(Sketcher.Constraint("Tangent", 18, 2, 19, 1))
sketch6.addConstraint(Sketcher.Constraint("Tangent", 19, 2, 12, 1))
sketch6.addConstraint(Sketcher.Constraint("Tangent", 20, 2, 21, 1))
sketch6.addConstraint(Sketcher.Constraint("Tangent", 21, 2, 22, 2))
sketch6.addConstraint(Sketcher.Constraint("Tangent", 22, 1, 23, 1))
sketch6.addConstraint(Sketcher.Constraint("Tangent", 23, 2, 24, 1))
sketch6.addConstraint(Sketcher.Constraint("Tangent", 24, 2, 25, 1))
sketch6.addConstraint(Sketcher.Constraint("Tangent", 25, 2, 26, 1))
sketch6.addConstraint(Sketcher.Constraint("Tangent", 26, 2, 27, 1))
sketch6.addConstraint(Sketcher.Constraint("Tangent", 27, 2, 20, 1))
sketch6.addConstraint(Sketcher.Constraint("Coincident", 28, 1, 29, 2))
sketch6.addConstraint(Sketcher.Constraint("Coincident", 29, 1, 28, 2))
sketch6.addConstraint(Sketcher.Constraint("Tangent", 30, 2, 31, 1))
sketch6.addConstraint(Sketcher.Constraint("Tangent", 31, 2, 32, 2))
sketch6.addConstraint(Sketcher.Constraint("Tangent", 32, 1, 33, 1))
sketch6.addConstraint(Sketcher.Constraint("Tangent", 33, 2, 34, 1))
sketch6.addConstraint(Sketcher.Constraint("Tangent", 34, 2, 35, 1))
sketch6.addConstraint(Sketcher.Constraint("Tangent", 35, 2, 36, 1))
sketch6.addConstraint(Sketcher.Constraint("Tangent", 36, 2, 37, 1))
sketch6.addConstraint(Sketcher.Constraint("Tangent", 37, 2, 30, 1))
sketch6.addConstraint(Sketcher.Constraint("Horizontal", 2))
sketch6.addConstraint(Sketcher.Constraint("Vertical", 8))
sketch6.addConstraint(Sketcher.Constraint("Vertical", 12))
sketch6.addConstraint(Sketcher.Constraint("Horizontal", 24))
sketch6.addConstraint(Sketcher.Constraint("Horizontal", 28))
sketch6.addConstraint(Sketcher.Constraint("Horizontal", 30))
sketch6.addConstraint(Sketcher.Constraint("Coincident", 6, 3, -1, 1))
sketch6.addConstraint(Sketcher.Constraint("Coincident", 10, 3, -1, 1))
sketch6.addConstraint(Sketcher.Constraint("Coincident", 14, 3, -1, 1))
sketch6.addConstraint(Sketcher.Constraint("Coincident", 18, 3, -1, 1))
sketch6.addConstraint(Sketcher.Constraint("Coincident", 22, 3, -1, 1))
sketch6.addConstraint(Sketcher.Constraint("Coincident", 26, 3, -1, 1))
sketch6.addConstraint(Sketcher.Constraint("Coincident", 29, 3, -1, 1))
sketch6.addConstraint(Sketcher.Constraint("Coincident", 32, 3, -1, 1))
sketch6.addConstraint(Sketcher.Constraint("Coincident", 36, 3, -1, 1))
sketch6.addConstraint(Sketcher.Constraint("Equal", 0, 1))
sketch6.addConstraint(Sketcher.Constraint("Equal", 5, 7))
sketch6.addConstraint(Sketcher.Constraint("Equal", 7, 9))
sketch6.addConstraint(Sketcher.Constraint("Equal", 9, 11))
sketch6.addConstraint(Sketcher.Constraint("Equal", 11, 13))
sketch6.addConstraint(Sketcher.Constraint("Equal", 6, 14))
sketch6.addConstraint(Sketcher.Constraint("Equal", 13, 15))
sketch6.addConstraint(Sketcher.Constraint("Equal", 15, 17))
sketch6.addConstraint(Sketcher.Constraint("Equal", 10, 18))
sketch6.addConstraint(Sketcher.Constraint("Equal", 17, 19))
sketch6.addConstraint(Sketcher.Constraint("Equal", 19, 21))
sketch6.addConstraint(Sketcher.Constraint("Equal", 14, 22))
sketch6.addConstraint(Sketcher.Constraint("Equal", 21, 23))
sketch6.addConstraint(Sketcher.Constraint("Equal", 23, 25))
sketch6.addConstraint(Sketcher.Constraint("Equal", 18, 26))
sketch6.addConstraint(Sketcher.Constraint("Equal", 25, 27))
sketch6.addConstraint(Sketcher.Constraint("Equal", 27, 31))
sketch6.addConstraint(Sketcher.Constraint("Equal", 22, 32))
sketch6.addConstraint(Sketcher.Constraint("Equal", 31, 33))
sketch6.addConstraint(Sketcher.Constraint("Equal", 33, 35))
sketch6.addConstraint(Sketcher.Constraint("Equal", 26, 36))
sketch6.addConstraint(Sketcher.Constraint("Equal", 35, 37))
sketch6.addConstraint(Sketcher.Constraint("Symmetric", 0, 3, 1, 3, -2))
sketch6.addConstraint(Sketcher.Constraint("Symmetric", 4, 2, 15, 2, -2))
sketch6.addConstraint(Sketcher.Constraint("Symmetric", 20, 2, 33, 2, -2))
sketch6.addConstraint(Sketcher.Constraint("PointOnObject", 3, 3, -1))
sketch6.addConstraint(Sketcher.Constraint("PointOnObject", 2, 1, -1))
sketch6.addConstraint(Sketcher.Constraint("PointOnObject", 28, 1, -1))
sketch6.addConstraint(Sketcher.Constraint("Perpendicular", 4, 16))
sketch6.addConstraint(Sketcher.Constraint("Parallel", 16, 20))
sketch6.addConstraint(Sketcher.Constraint("Horizontal", 7, 3, 13, 3))
sketch6.addConstraint(Sketcher.Constraint("Horizontal", 25, 3, 31, 3))
sketch6.addConstraint(Sketcher.Constraint("Equal", 30, 8))
sketch6.addConstraint(Sketcher.Constraint("Equal", 16, 20))
sketch6.addConstraint(Sketcher.Constraint("Diameter", 0, 4.0))
sketch6.addConstraint(Sketcher.Constraint("Radius", 5, 1.0))
sketch6.addConstraint(Sketcher.Constraint("Radius", 6, 8.0))
sketch6.addConstraint(Sketcher.Constraint("Radius", 10, 19.0))
sketch6.addConstraint(Sketcher.Constraint("Radius", 29, 4.0))
sketch6.addConstraint(Sketcher.Constraint("Radius", 3, 1.5))
sketch6.addConstraint(Sketcher.Constraint("DistanceX", 0, 3, -1, 1, 16.0))
sketch6.addConstraint(Sketcher.Constraint("DistanceY", -1, 1, 0, 3, 16.0))
sketch6.addConstraint(Sketcher.Constraint("DistanceX", 7, 3, -1, 1, 2.5))
sketch6.addConstraint(Sketcher.Constraint("DistanceY", -1, 1, 11, 3, 14.37233))
sketch6.addConstraint(Sketcher.Constraint("DistanceX", -1, 1, 3, 3, 23.574048))
sketch6.setExpression("Constraints[85]", "Params.sketch6_diameter")
sketch6.setExpression("Constraints[86]", "Params.sketch6_radius")
sketch6.setExpression("Constraints[87]", "Params.sketch6_radius2")
sketch6.setExpression("Constraints[88]", "Params.sketch6_radius3")
sketch6.setExpression("Constraints[89]", "Params.sketch6_radius4")
pocket3 = body.newObject("PartDesign::Pocket", "Pocket002")
pocket3.Profile = sketch6
pocket3.setExpression("Length", "Params.pocket3_length")

# Sketch on XZ plane
sketch7 = body.newObject("Sketcher::SketchObject", "Sketch006")
sketch7.AttachmentSupport = (doc.getObject("XZ_Plane"), [""])
sketch7.MapMode = "FlatFace"
sketch7.AttachmentOffset = App.Placement(Vector(0, 0, -15), App.Rotation())
sketch7.addGeometry(Part.Circle(Vector(23.2, 5.2, 0), Vector(0, 0, 1), 1.6), False)
sketch7.addGeometry(Part.Circle(Vector(23.2, 23.2, 0), Vector(0, 0, 1), 1.6), False)
sketch7.addConstraint(Sketcher.Constraint("Equal", 0, 1))
sketch7.addConstraint(Sketcher.Constraint("Vertical", 0, 3, 1, 3))
sketch7.addConstraint(Sketcher.Constraint("Diameter", 0, 3.2))
sketch7.addConstraint(Sketcher.Constraint("DistanceY", 0, 3, 1, 3, 18.0))
sketch7.addConstraint(Sketcher.Constraint("DistanceX", -1, 1, 0, 3, 23.25))
sketch7.addConstraint(Sketcher.Constraint("DistanceY", -1, 1, 0, 3, 5.25))
sketch7.setExpression("Constraints[2]", "Params.sketch7_diameter")
pocket4 = body.newObject("PartDesign::Pocket", "Pocket003")
pocket4.Profile = sketch7
pocket4.Type = "ThroughAll"
pocket4.Midplane = True

# Sketch on XZ plane
sketch8 = body.newObject("Sketcher::SketchObject", "Sketch007")
sketch8.AttachmentSupport = (doc.getObject("XZ_Plane"), [""])
sketch8.MapMode = "FlatFace"
sketch8.AttachmentOffset = App.Placement(Vector(0, 0, -15), App.Rotation())
sketch8.addGeometry(Part.Circle(Vector(23.2, 5.2, 0), Vector(0, 0, 1), 2.5), False)
sketch8.addGeometry(Part.Circle(Vector(23.2, 23.2, 0), Vector(0, 0, 1), 2.5), False)
sketch8.addConstraint(Sketcher.Constraint("Equal", 0, 1))
sketch8.addConstraint(Sketcher.Constraint("Vertical", 0, 3, 1, 3))
sketch8.addConstraint(Sketcher.Constraint("Diameter", 0, 5.0))
sketch8.addConstraint(Sketcher.Constraint("DistanceY", 0, 3, 1, 3, 18.0))
sketch8.addConstraint(Sketcher.Constraint("DistanceX", -1, 1, 0, 3, 23.25))
sketch8.addConstraint(Sketcher.Constraint("DistanceY", -1, 1, 0, 3, 5.25))
sketch8.setExpression("Constraints[2]", "Params.sketch8_diameter")
pocket5 = body.newObject("PartDesign::Pocket", "Pocket004")
pocket5.Profile = sketch8
pocket5.Type = "TwoLengths"
pocket5.setExpression("Length", "Params.pocket5_length")
pocket5.setExpression("Length2", "Params.pocket5_length2")

# Sketch on XY plane
sketch9 = body.newObject("Sketcher::SketchObject", "Sketch008")
sketch9.AttachmentSupport = (doc.getObject("XY_Plane"), [""])
sketch9.MapMode = "FlatFace"
sketch9.AttachmentOffset = App.Placement(Vector(0, 0, 30.5), App.Rotation())
sketch9.addGeometry(Part.LineSegment(Vector(-19, 0, 0), Vector(19, 0, 0)), False)
sketch9.addGeometry(Part.ArcOfCircle(Part.Circle(Vector(0, 0, 0), Vector(0, 0, 1), 19), math.radians(0), math.radians(158)), False)
sketch9.addGeometry(Part.ArcOfCircle(Part.Circle(Vector(0, 0, 0), Vector(0, 0, 1), 19), math.radians(157), math.radians(180)), False)
sketch9.addConstraint(Sketcher.Constraint("Coincident", 0, 2, 1, 1))
sketch9.addConstraint(Sketcher.Constraint("Tangent", 1, 2, 2, 1))
sketch9.addConstraint(Sketcher.Constraint("Coincident", 2, 2, 0, 1))
sketch9.addConstraint(Sketcher.Constraint("Horizontal", 0))
sketch9.addConstraint(Sketcher.Constraint("Coincident", 1, 3, -1, 1))
sketch9.addConstraint(Sketcher.Constraint("Equal", 1, 2))
sketch9.addConstraint(Sketcher.Constraint("PointOnObject", 0, 2, -1))
sketch9.addConstraint(Sketcher.Constraint("Radius", 1, 19.0))
sketch9.addConstraint(Sketcher.Constraint("DistanceX", 1, 2, -1, 1, 17.553711))
sketch9.setExpression("Constraints[7]", "Params.sketch9_radius")
pocket6 = body.newObject("PartDesign::Pocket", "Pocket005")
pocket6.Profile = sketch9
pocket6.setExpression("Length", "Params.pocket6_length")

doc.recompute()
